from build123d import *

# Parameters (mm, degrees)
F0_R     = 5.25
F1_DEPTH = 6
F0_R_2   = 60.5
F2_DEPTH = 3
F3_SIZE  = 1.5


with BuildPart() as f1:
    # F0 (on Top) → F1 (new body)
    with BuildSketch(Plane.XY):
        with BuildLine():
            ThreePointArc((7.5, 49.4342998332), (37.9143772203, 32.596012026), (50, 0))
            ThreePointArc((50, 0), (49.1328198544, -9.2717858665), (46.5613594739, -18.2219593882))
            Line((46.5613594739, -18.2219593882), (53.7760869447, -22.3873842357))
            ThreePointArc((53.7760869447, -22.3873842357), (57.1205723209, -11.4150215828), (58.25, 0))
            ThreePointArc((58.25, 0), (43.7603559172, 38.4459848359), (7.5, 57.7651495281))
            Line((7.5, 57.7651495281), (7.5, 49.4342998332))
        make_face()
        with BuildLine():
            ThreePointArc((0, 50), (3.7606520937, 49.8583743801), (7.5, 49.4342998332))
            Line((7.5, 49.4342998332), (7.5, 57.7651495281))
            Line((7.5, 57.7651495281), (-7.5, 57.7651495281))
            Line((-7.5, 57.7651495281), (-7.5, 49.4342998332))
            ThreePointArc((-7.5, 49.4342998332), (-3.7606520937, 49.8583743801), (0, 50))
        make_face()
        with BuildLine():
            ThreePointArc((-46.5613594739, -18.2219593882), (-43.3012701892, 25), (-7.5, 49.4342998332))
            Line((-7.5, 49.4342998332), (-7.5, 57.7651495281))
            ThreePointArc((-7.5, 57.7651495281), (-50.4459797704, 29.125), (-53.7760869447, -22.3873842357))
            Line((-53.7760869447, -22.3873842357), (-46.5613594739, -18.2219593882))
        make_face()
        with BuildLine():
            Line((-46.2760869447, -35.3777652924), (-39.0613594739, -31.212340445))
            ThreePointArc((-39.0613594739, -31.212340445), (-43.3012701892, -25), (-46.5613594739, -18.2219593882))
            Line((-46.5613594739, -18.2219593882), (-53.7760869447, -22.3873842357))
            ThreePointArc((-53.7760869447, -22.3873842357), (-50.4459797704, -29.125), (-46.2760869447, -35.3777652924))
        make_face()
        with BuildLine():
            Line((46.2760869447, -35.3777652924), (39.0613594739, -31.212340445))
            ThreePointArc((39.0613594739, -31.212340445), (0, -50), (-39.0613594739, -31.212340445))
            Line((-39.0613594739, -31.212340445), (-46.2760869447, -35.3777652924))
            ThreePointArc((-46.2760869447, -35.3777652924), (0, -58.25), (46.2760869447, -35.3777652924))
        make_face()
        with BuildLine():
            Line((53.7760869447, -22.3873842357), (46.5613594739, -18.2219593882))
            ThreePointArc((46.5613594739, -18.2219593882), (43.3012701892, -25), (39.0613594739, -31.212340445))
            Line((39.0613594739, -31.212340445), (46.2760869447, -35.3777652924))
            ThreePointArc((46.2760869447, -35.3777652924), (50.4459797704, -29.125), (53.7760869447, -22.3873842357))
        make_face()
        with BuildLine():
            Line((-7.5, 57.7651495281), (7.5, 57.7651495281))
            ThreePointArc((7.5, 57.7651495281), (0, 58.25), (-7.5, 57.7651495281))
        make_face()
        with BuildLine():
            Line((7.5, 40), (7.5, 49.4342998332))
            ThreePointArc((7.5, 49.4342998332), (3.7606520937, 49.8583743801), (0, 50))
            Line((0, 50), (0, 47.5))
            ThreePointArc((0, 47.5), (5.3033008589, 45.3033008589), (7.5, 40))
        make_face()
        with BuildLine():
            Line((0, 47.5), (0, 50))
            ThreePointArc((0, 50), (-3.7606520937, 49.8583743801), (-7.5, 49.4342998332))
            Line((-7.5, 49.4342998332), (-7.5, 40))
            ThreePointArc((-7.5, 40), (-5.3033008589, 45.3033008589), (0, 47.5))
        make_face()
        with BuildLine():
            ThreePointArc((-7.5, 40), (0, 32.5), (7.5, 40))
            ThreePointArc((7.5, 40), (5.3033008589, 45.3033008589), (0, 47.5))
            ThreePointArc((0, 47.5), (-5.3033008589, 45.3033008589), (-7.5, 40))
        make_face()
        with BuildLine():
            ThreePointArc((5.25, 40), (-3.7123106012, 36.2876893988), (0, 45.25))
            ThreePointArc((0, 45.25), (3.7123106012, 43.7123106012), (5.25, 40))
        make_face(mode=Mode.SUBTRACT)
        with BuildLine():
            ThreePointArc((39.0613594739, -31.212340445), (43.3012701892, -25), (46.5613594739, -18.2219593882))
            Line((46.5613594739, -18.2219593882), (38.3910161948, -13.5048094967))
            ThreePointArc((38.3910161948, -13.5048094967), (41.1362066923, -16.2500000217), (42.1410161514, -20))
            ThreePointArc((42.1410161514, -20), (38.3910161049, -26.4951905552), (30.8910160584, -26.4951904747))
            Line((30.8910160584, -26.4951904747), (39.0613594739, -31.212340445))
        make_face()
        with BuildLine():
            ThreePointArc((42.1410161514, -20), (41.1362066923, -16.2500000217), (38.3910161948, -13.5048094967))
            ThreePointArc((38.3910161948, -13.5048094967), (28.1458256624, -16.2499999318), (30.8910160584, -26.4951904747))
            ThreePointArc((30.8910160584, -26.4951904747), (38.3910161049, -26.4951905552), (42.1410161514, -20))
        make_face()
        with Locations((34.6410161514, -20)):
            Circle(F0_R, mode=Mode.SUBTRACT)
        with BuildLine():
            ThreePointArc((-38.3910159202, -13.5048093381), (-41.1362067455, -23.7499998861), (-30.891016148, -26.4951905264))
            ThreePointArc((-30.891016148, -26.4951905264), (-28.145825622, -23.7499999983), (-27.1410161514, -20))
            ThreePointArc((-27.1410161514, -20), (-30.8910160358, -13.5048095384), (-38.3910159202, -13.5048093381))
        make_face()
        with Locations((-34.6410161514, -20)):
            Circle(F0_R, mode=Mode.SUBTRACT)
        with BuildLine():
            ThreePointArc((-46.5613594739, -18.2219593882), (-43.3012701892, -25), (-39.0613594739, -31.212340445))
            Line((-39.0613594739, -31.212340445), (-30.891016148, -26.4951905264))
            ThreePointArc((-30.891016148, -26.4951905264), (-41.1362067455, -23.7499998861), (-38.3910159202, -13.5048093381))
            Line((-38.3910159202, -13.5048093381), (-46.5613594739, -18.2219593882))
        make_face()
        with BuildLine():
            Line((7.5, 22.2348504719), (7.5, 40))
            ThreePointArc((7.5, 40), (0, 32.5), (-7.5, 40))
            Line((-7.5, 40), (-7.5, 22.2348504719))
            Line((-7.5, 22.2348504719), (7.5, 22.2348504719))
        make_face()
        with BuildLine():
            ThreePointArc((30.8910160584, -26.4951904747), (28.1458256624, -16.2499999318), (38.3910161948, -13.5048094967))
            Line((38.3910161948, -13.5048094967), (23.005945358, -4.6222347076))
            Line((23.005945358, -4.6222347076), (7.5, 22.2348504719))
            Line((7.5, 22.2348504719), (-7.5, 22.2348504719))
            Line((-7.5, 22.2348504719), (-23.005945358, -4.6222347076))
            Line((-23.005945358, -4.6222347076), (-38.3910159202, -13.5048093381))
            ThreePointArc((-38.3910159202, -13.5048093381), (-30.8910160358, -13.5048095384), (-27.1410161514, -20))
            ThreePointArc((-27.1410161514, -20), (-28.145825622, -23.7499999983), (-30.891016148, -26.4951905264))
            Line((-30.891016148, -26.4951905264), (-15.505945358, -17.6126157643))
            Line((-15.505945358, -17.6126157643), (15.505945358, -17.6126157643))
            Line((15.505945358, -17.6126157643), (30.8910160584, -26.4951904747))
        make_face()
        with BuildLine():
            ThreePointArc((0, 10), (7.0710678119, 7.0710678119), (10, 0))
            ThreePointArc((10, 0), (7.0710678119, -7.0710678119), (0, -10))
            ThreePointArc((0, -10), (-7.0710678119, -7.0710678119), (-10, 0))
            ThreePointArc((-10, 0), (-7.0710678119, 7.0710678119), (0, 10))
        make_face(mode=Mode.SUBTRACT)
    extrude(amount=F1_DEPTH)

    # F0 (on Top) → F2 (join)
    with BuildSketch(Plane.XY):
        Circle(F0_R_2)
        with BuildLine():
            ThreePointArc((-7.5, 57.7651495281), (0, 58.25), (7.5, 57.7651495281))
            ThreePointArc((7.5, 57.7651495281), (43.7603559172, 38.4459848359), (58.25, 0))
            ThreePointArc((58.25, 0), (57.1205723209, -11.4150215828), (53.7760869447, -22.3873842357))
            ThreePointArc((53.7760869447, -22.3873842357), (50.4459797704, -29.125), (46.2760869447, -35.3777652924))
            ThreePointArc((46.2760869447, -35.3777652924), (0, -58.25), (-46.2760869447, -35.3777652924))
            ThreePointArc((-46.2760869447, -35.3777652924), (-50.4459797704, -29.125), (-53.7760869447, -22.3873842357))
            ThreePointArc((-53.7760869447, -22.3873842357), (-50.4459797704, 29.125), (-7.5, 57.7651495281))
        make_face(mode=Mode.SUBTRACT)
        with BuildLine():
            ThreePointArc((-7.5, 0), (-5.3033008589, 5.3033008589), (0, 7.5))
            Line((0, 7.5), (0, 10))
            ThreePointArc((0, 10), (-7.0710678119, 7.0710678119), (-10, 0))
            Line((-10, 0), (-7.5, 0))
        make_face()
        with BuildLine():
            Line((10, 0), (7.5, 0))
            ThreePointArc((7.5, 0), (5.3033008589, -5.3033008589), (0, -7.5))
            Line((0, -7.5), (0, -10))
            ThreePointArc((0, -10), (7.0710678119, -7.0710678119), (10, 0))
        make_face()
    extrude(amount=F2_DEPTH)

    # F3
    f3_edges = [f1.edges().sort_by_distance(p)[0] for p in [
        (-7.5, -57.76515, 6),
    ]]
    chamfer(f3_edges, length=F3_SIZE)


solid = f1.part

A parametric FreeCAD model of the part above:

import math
import FreeCAD as App
import Part
import Sketcher

V = App.Vector
Q = App.Units.Quantity


def edges_at(feature, points):
    """Names of the edges that pass closest to the given points."""
    edges = feature.Shape.Edges
    near = lambda p: min(range(len(edges)), key=lambda i: edges[i].distToShape(Part.Vertex(*p))[0])
    return sorted({f"Edge{near(p) + 1}" for p in points})

doc = App.newDocument("Part")
body = doc.addObject("PartDesign::Body", "Body")

sketch1 = doc.addObject("Sketcher::SketchObject", "Sketch")
body.addObject(sketch1)
sketch1.AttachmentSupport = (doc.XY_Plane, [""])
sketch1.MapMode = "FlatFace"
sketch1.addGeometry(Part.ArcOfCircle(Part.Circle(V(0, 0, 0), V(0, 0, 1), 58.25), math.radians(-22.602324), math.radians(0)), False)
sketch1.addGeometry(Part.ArcOfCircle(Part.Circle(V(0, 0, 0), V(0, 0, 1), 58.25), math.radians(0), math.radians(82.602324)), False)
sketch1.addGeometry(Part.ArcOfCircle(Part.Circle(V(0, 0, 0), V(0, 0, 1), 58.25), math.radians(82.602324), math.radians(97.397676)), False)
sketch1.addGeometry(Part.ArcOfCircle(Part.Circle(V(0, 0, 0), V(0, 0, 1), 58.25), math.radians(97.397676), math.radians(202.602324)), False)
sketch1.addGeometry(Part.ArcOfCircle(Part.Circle(V(0, 0, 0), V(0, 0, 1), 58.25), math.radians(-157.397676), math.radians(-142.602324)), False)
sketch1.addGeometry(Part.ArcOfCircle(Part.Circle(V(0, 0, 0), V(0, 0, 1), 58.25), math.radians(-142.602324), math.radians(-37.397676)), False)
sketch1.addGeometry(Part.ArcOfCircle(Part.Circle(V(0, 0, 0), V(0, 0, 1), 58.25), math.radians(-37.397676), math.radians(-22.602324)), False)
sketch1.addGeometry(Part.Circle(V(-34.641016, -20, 0), V(0, 0, 1), 5.25), False)
sketch1.addGeometry(Part.LineSegment(V(30.891016, -26.49519, 0), V(39.061359, -31.21234, 0)), False)
sketch1.addGeometry(Part.ArcOfCircle(Part.Circle(V(0, 0, 0), V(0, 0, 1), 50), math.radians(-141.373073), math.radians(-38.626927)), False)
sketch1.addGeometry(Part.LineSegment(V(-39.061359, -31.21234, 0), V(-30.891016, -26.495191, 0)), False)
sketch1.addGeometry(Part.LineSegment(V(-30.891016, -26.495191, 0), V(-15.505945, -17.612616, 0)), False)
sketch1.addGeometry(Part.LineSegment(V(-15.505945, -17.612616, 0), V(15.505945, -17.612616, 0)), False)
sketch1.addGeometry(Part.LineSegment(V(15.505945, -17.612616, 0), V(30.891016, -26.49519, 0)), False)
sketch1.addGeometry(Part.Circle(V(34.641016, -20, 0), V(0, 0, 1), 5.25), False)
sketch1.addGeometry(Part.LineSegment(V(-38.391016, -13.504809, 0), V(-46.561359, -18.221959, 0)), False)
sketch1.addGeometry(Part.ArcOfCircle(Part.Circle(V(0, 0, 0), V(0, 0, 1), 50), math.radians(98.626927), math.radians(201.373073)), False)
sketch1.addGeometry(Part.LineSegment(V(-7.5, 49.4343, 0), V(-7.5, 22.23485, 0)), False)
sketch1.addGeometry(Part.LineSegment(V(-7.5, 22.23485, 0), V(-23.005945, -4.622235, 0)), False)
sketch1.addGeometry(Part.LineSegment(V(-23.005945, -4.622235, 0), V(-38.391016, -13.504809, 0)), False)
sketch1.addGeometry(Part.ArcOfCircle(Part.Circle(V(0, 0, 0), V(0, 0, 1), 10), math.radians(90), math.radians(180)), False)
sketch1.addGeometry(Part.ArcOfCircle(Part.Circle(V(0, 0, 0), V(0, 0, 1), 10), math.radians(0), math.radians(90)), False)
sketch1.addGeometry(Part.ArcOfCircle(Part.Circle(V(0, 0, 0), V(0, 0, 1), 10), math.radians(-90), math.radians(0)), False)
sketch1.addGeometry(Part.ArcOfCircle(Part.Circle(V(0, 0, 0), V(0, 0, 1), 10), math.radians(180), math.radians(270)), False)
sketch1.addGeometry(Part.ArcOfCircle(Part.Circle(V(0, 0, 0), V(0, 0, 1), 50), math.radians(0), math.radians(81.373073)), False)
sketch1.addGeometry(Part.ArcOfCircle(Part.Circle(V(0, 0, 0), V(0, 0, 1), 50), math.radians(-21.373073), math.radians(0)), False)
sketch1.addGeometry(Part.LineSegment(V(46.561359, -18.221959, 0), V(38.391016, -13.504809, 0)), False)
sketch1.addGeometry(Part.LineSegment(V(38.391016, -13.504809, 0), V(23.005945, -4.622235, 0)), False)
sketch1.addGeometry(Part.LineSegment(V(23.005945, -4.622235, 0), V(7.5, 22.23485, 0)), False)
sketch1.addGeometry(Part.LineSegment(V(7.5, 22.23485, 0), V(7.5, 49.4343, 0)), False)
sketch1.addGeometry(Part.ArcOfCircle(Part.Circle(V(0, 40, 0), V(0, 0, 1), 5.25), math.radians(0), math.radians(90)), False)
sketch1.addGeometry(Part.ArcOfCircle(Part.Circle(V(0, 40, 0), V(0, 0, 1), 5.25), math.radians(90), math.radians(360)), False)
sketch1.addConstraint(Sketcher.Constraint("Tangent", 0, 2, 1, 1))
sketch1.addConstraint(Sketcher.Constraint("Tangent", 1, 2, 2, 1))
sketch1.addConstraint(Sketcher.Constraint("Tangent", 2, 2, 3, 1))
sketch1.addConstraint(Sketcher.Constraint("Tangent", 3, 2, 4, 1))
sketch1.addConstraint(Sketcher.Constraint("Tangent", 4, 2, 5, 1))
sketch1.addConstraint(Sketcher.Constraint("Tangent", 5, 2, 6, 1))
sketch1.addConstraint(Sketcher.Constraint("Tangent", 6, 2, 0, 1))
sketch1.addConstraint(Sketcher.Constraint("Coincident", 8, 2, 9, 2))
sketch1.addConstraint(Sketcher.Constraint("Coincident", 9, 1, 10, 1))
sketch1.addConstraint(Sketcher.Constraint("Coincident", 10, 2, 11, 1))
sketch1.addConstraint(Sketcher.Constraint("Coincident", 11, 2, 12, 1))
sketch1.addConstraint(Sketcher.Constraint("Coincident", 12, 2, 13, 1))
sketch1.addConstraint(Sketcher.Constraint("Coincident", 13, 2, 8, 1))
sketch1.addConstraint(Sketcher.Constraint("Coincident", 15, 2, 16, 2))
sketch1.addConstraint(Sketcher.Constraint("Coincident", 16, 1, 17, 1))
sketch1.addConstraint(Sketcher.Constraint("Coincident", 17, 2, 18, 1))
sketch1.addConstraint(Sketcher.Constraint("Coincident", 18, 2, 19, 1))
sketch1.addConstraint(Sketcher.Constraint("Coincident", 19, 2, 15, 1))
sketch1.addConstraint(Sketcher.Constraint("Tangent", 20, 1, 21, 2))
sketch1.addConstraint(Sketcher.Constraint("Tangent", 21, 1, 22, 2))
sketch1.addConstraint(Sketcher.Constraint("Tangent", 22, 1, 23, 2))
sketch1.addConstraint(Sketcher.Constraint("Tangent", 23, 1, 20, 2))
sketch1.addConstraint(Sketcher.Constraint("Tangent", 24, 1, 25, 2))
sketch1.addConstraint(Sketcher.Constraint("Coincident", 25, 1, 26, 1))
sketch1.addConstraint(Sketcher.Constraint("Coincident", 26, 2, 27, 1))
sketch1.addConstraint(Sketcher.Constraint("Coincident", 27, 2, 28, 1))
sketch1.addConstraint(Sketcher.Constraint("Coincident", 28, 2, 29, 1))
sketch1.addConstraint(Sketcher.Constraint("Coincident", 29, 2, 24, 2))
sketch1.addConstraint(Sketcher.Constraint("Tangent", 30, 1, 31, 2))
sketch1.addConstraint(Sketcher.Constraint("Coincident", 31, 1, 30, 2))
sketch1.addConstraint(Sketcher.Constraint("Horizontal", 12))
sketch1.addConstraint(Sketcher.Constraint("Vertical", 17))
sketch1.addConstraint(Sketcher.Constraint("Vertical", 29))
sketch1.addConstraint(Sketcher.Constraint("Coincident", 0, 3, -1, 1))
sketch1.addConstraint(Sketcher.Constraint("Coincident", 2, 3, -1, 1))
sketch1.addConstraint(Sketcher.Constraint("Coincident", 4, 3, -1, 1))
sketch1.addConstraint(Sketcher.Constraint("Coincident", 9, 3, -1, 1))
sketch1.addConstraint(Sketcher.Constraint("Coincident", 16, 3, -1, 1))
sketch1.addConstraint(Sketcher.Constraint("Coincident", 20, 3, -1, 1))
sketch1.addConstraint(Sketcher.Constraint("Coincident", 24, 3, -1, 1))
sketch1.addConstraint(Sketcher.Constraint("Equal", 7, 14))
sketch1.addConstraint(Sketcher.Constraint("Equal", 9, 16))
sketch1.addConstraint(Sketcher.Constraint("Equal", 20, 21))
sketch1.addConstraint(Sketcher.Constraint("Equal", 16, 24))
sketch1.addConstraint(Sketcher.Constraint("Equal", 24, 25))
sketch1.addConstraint(Sketcher.Constraint("Equal", 14, 30))
sketch1.addConstraint(Sketcher.Constraint("Symmetric", 7, 3, 14, 3, -2))
sketch1.addConstraint(Sketcher.Constraint("Symmetric", 10, 2, 13, 2, -2))
sketch1.addConstraint(Sketcher.Constraint("Symmetric", 19, 2, 26, 2, -2))
sketch1.addConstraint(Sketcher.Constraint("Symmetric", 18, 2, 27, 2, -2))
sketch1.addConstraint(Sketcher.Constraint("Symmetric", 17, 2, 28, 2, -2))
sketch1.addConstraint(Sketcher.Constraint("PointOnObject", 30, 3, -2))
sketch1.addConstraint(Sketcher.Constraint("PointOnObject", 0, 2, -1))
sketch1.addConstraint(Sketcher.Constraint("PointOnObject", 20, 1, -2))
sketch1.addConstraint(Sketcher.Constraint("PointOnObject", 21, 1, -1))
sketch1.addConstraint(Sketcher.Constraint("PointOnObject", 22, 1, -2))
sketch1.addConstraint(Sketcher.Constraint("PointOnObject", 23, 1, -1))
sketch1.addConstraint(Sketcher.Constraint("PointOnObject", 24, 1, -1))
sketch1.addConstraint(Sketcher.Constraint("PointOnObject", 31, 1, -2))
sketch1.addConstraint(Sketcher.Constraint("Parallel", 10, 11))
sketch1.addConstraint(Sketcher.Constraint("Parallel", 8, 13))
sketch1.addConstraint(Sketcher.Constraint("Parallel", 11, 15))
sketch1.addConstraint(Sketcher.Constraint("Perpendicular", 13, 18))
sketch1.addConstraint(Sketcher.Constraint("Parallel", 15, 19))
sketch1.addConstraint(Sketcher.Constraint("Perpendicular", 18, 26))
sketch1.addConstraint(Sketcher.Constraint("Parallel", 26, 27))
sketch1.addConstraint(Sketcher.Constraint("Horizontal", 1, 2, 2, 2))
sketch1.addConstraint(Sketcher.Constraint("Horizontal", 4, 2, 5, 2))
sketch1.addConstraint(Sketcher.Constraint("Horizontal", 3, 2, 6, 2))
sketch1.addConstraint(Sketcher.Constraint("Horizontal", 31, 3, 30, 1))
sketch1.addConstraint(Sketcher.Constraint("Vertical", 2, 2, 16, 1))
sketch1.addConstraint(Sketcher.Constraint("Equal", 10, 15))
sketch1.addConstraint(Sketcher.Constraint("Equal", 13, 19))
sketch1.addConstraint(Sketcher.Constraint("Radius", 9, Q("50 mm")))
sketch1.addConstraint(Sketcher.Constraint("Radius", 20, Q("10 mm")))
sketch1.addConstraint(Sketcher.Constraint("Diameter", 7, Q("10.5 mm")))
sketch1.addConstraint(Sketcher.Constraint("Angle", 8, Q("-30 deg")))
sketch1.addConstraint(Sketcher.Constraint("Radius", 0, Q("58.25 mm")))
sketch1.addConstraint(Sketcher.Constraint("DistanceY", 7, 3, -1, 1, Q("20 mm")))
sketch1.addConstraint(Sketcher.Constraint("DistanceY", -1, 1, 30, 3, Q("40 mm")))
sketch1.addConstraint(Sketcher.Constraint("DistanceX", 2, 2, 1, 2, Q("15 mm")))
sketch1.addConstraint(Sketcher.Constraint("DistanceX", 3, 2, 4, 2, Q("7.5 mm")))
sketch1.addConstraint(Sketcher.Constraint("DistanceX", 15, 2, 9, 1, Q("7.5 mm")))
sketch1.addConstraint(Sketcher.Constraint("DistanceX", 7, 3, 10, 2, Q("3.75 mm")))
sketch1.addConstraint(Sketcher.Constraint("Distance", 8, Q("9.4343 mm")))
sketch1.addConstraint(Sketcher.Constraint("DistanceX", 12, 1, 12, 2, Q("31.011891 mm")))
sketch1.addConstraint(Sketcher.Constraint("DistanceY", 17, 2, 17, 1, Q("27.199449 mm")))
sketch1.addConstraint(Sketcher.Constraint("DistanceX", 3, 2, 7, 3, Q("19.135071 mm")))
pad1 = doc.addObject("PartDesign::Pad", "Pad")
body.addObject(pad1)
pad1.Profile = sketch1
pad1.Length = 6

sketch2 = doc.addObject("Sketcher::SketchObject", "Sketch001")
body.addObject(sketch2)
sketch2.AttachmentSupport = (doc.XY_Plane, [""])
sketch2.MapMode = "FlatFace"
sketch2.addGeometry(Part.Circle(V(0, 0, 0), V(0, 0, 1), 60.5), False)
sketch2.addGeometry(Part.ArcOfCircle(Part.Circle(V(0, 0, 0), V(0, 0, 1), 58.25), math.radians(97.397676), math.radians(202.602324)), False)
sketch2.addGeometry(Part.ArcOfCircle(Part.Circle(V(0, 0, 0), V(0, 0, 1), 58.25), math.radians(82.602324), math.radians(97.397676)), False)
sketch2.addGeometry(Part.ArcOfCircle(Part.Circle(V(0, 0, 0), V(0, 0, 1), 58.25), math.radians(0), math.radians(82.602324)), False)
sketch2.addGeometry(Part.ArcOfCircle(Part.Circle(V(0, 0, 0), V(0, 0, 1), 58.25), math.radians(-22.602324), math.radians(0)), False)
sketch2.addGeometry(Part.ArcOfCircle(Part.Circle(V(0, 0, 0), V(0, 0, 1), 58.25), math.radians(-37.397676), math.radians(-22.602324)), False)
sketch2.addGeometry(Part.ArcOfCircle(Part.Circle(V(0, 0, 0), V(0, 0, 1), 58.25), math.radians(-142.602324), math.radians(-37.397676)), False)
sketch2.addGeometry(Part.ArcOfCircle(Part.Circle(V(0, 0, 0), V(0, 0, 1), 58.25), math.radians(-157.397676), math.radians(-142.602324)), False)
sketch2.addGeometry(Part.ArcOfCircle(Part.Circle(V(0, 0, 0), V(0, 0, 1), 7.5), math.radians(90), math.radians(180)), False)
sketch2.addGeometry(Part.LineSegment(V(0, 7.5, 0), V(0, 10, 0)), False)
sketch2.addGeometry(Part.ArcOfCircle(Part.Circle(V(0, 0, 0), V(0, 0, 1), 10), math.radians(90), math.radians(180)), False)
sketch2.addGeometry(Part.LineSegment(V(-10, 0, 0), V(-7.5, 0, 0)), False)
sketch2.addGeometry(Part.LineSegment(V(10, 0, 0), V(7.5, 0, 0)), False)
sketch2.addGeometry(Part.ArcOfCircle(Part.Circle(V(0, 0, 0), V(0, 0, 1), 7.5), math.radians(-90), math.radians(0)), False)
sketch2.addGeometry(Part.LineSegment(V(0, -7.5, 0), V(0, -10, 0)), False)
sketch2.addGeometry(Part.ArcOfCircle(Part.Circle(V(0, 0, 0), V(0, 0, 1), 10), math.radians(-90), math.radians(0)), False)
sketch2.addConstraint(Sketcher.Constraint("Tangent", 1, 1, 2, 2))
sketch2.addConstraint(Sketcher.Constraint("Tangent", 2, 1, 3, 2))
sketch2.addConstraint(Sketcher.Constraint("Tangent", 3, 1, 4, 2))
sketch2.addConstraint(Sketcher.Constraint("Tangent", 4, 1, 5, 2))
sketch2.addConstraint(Sketcher.Constraint("Tangent", 5, 1, 6, 2))
sketch2.addConstraint(Sketcher.Constraint("Tangent", 6, 1, 7, 2))
sketch2.addConstraint(Sketcher.Constraint("Tangent", 7, 1, 1, 2))
sketch2.addConstraint(Sketcher.Constraint("Coincident", 8, 1, 9, 1))
sketch2.addConstraint(Sketcher.Constraint("Coincident", 9, 2, 10, 1))
sketch2.addConstraint(Sketcher.Constraint("Coincident", 10, 2, 11, 1))
sketch2.addConstraint(Sketcher.Constraint("Coincident", 11, 2, 8, 2))
sketch2.addConstraint(Sketcher.Constraint("Coincident", 12, 2, 13, 2))
sketch2.addConstraint(Sketcher.Constraint("Coincident", 13, 1, 14, 1))
sketch2.addConstraint(Sketcher.Constraint("Coincident", 14, 2, 15, 1))
sketch2.addConstraint(Sketcher.Constraint("Coincident", 15, 2, 12, 1))
sketch2.addConstraint(Sketcher.Constraint("Vertical", 9))
sketch2.addConstraint(Sketcher.Constraint("Horizontal", 11))
sketch2.addConstraint(Sketcher.Constraint("Horizontal", 12))
sketch2.addConstraint(Sketcher.Constraint("Vertical", 14))
sketch2.addConstraint(Sketcher.Constraint("Coincident", 0, 3, -1, 1))
sketch2.addConstraint(Sketcher.Constraint("Coincident", 1, 3, -1, 1))
sketch2.addConstraint(Sketcher.Constraint("Coincident", 3, 3, -1, 1))
sketch2.addConstraint(Sketcher.Constraint("Coincident", 5, 3, -1, 1))
sketch2.addConstraint(Sketcher.Constraint("Coincident", 8, 3, -1, 1))
sketch2.addConstraint(Sketcher.Constraint("Coincident", 10, 3, -1, 1))
sketch2.addConstraint(Sketcher.Constraint("Coincident", 13, 3, -1, 1))
sketch2.addConstraint(Sketcher.Constraint("Coincident", 15, 3, -1, 1))
sketch2.addConstraint(Sketcher.Constraint("Equal", 8, 13))
sketch2.addConstraint(Sketcher.Constraint("Equal", 10, 15))
sketch2.addConstraint(Sketcher.Constraint("PointOnObject", 3, 1, -1))
sketch2.addConstraint(Sketcher.Constraint("PointOnObject", 8, 1, -2))
sketch2.addConstraint(Sketcher.Constraint("PointOnObject", 10, 2, -1))
sketch2.addConstraint(Sketcher.Constraint("PointOnObject", 12, 2, -1))
sketch2.addConstraint(Sketcher.Constraint("PointOnObject", 13, 1, -2))
sketch2.addConstraint(Sketcher.Constraint("Horizontal", 1, 1, 2, 1))
sketch2.addConstraint(Sketcher.Constraint("Horizontal", 5, 1, 6, 1))
sketch2.addConstraint(Sketcher.Constraint("Horizontal", 4, 1, 7, 1))
sketch2.addConstraint(Sketcher.Constraint("Vertical", 1, 1, 11, 2))
sketch2.addConstraint(Sketcher.Constraint("Diameter", 0, Q("121 mm")))
sketch2.addConstraint(Sketcher.Constraint("Radius", 10, Q("10 mm")))
sketch2.addConstraint(Sketcher.Constraint("Radius", 8, Q("7.5 mm")))
sketch2.addConstraint(Sketcher.Constraint("Radius", 1, Q("58.25 mm")))
sketch2.addConstraint(Sketcher.Constraint("DistanceX", 5, 1, 4, 1, Q("7.5 mm")))
sketch2.addConstraint(Sketcher.Constraint("DistanceY", 5, 1, 4, 1, Q("12.990381 mm")))
pad2 = doc.addObject("PartDesign::Pad", "Pad001")
body.addObject(pad2)
pad2.Profile = sketch2
pad2.Length = 3
doc.recompute()

chamfer = doc.addObject("PartDesign::Chamfer", "Chamfer")
body.addObject(chamfer)
chamfer.Base = (pad2, edges_at(pad2, [(0, -58.25, 6)]))
chamfer.Size = 1.5

doc.recompute()
